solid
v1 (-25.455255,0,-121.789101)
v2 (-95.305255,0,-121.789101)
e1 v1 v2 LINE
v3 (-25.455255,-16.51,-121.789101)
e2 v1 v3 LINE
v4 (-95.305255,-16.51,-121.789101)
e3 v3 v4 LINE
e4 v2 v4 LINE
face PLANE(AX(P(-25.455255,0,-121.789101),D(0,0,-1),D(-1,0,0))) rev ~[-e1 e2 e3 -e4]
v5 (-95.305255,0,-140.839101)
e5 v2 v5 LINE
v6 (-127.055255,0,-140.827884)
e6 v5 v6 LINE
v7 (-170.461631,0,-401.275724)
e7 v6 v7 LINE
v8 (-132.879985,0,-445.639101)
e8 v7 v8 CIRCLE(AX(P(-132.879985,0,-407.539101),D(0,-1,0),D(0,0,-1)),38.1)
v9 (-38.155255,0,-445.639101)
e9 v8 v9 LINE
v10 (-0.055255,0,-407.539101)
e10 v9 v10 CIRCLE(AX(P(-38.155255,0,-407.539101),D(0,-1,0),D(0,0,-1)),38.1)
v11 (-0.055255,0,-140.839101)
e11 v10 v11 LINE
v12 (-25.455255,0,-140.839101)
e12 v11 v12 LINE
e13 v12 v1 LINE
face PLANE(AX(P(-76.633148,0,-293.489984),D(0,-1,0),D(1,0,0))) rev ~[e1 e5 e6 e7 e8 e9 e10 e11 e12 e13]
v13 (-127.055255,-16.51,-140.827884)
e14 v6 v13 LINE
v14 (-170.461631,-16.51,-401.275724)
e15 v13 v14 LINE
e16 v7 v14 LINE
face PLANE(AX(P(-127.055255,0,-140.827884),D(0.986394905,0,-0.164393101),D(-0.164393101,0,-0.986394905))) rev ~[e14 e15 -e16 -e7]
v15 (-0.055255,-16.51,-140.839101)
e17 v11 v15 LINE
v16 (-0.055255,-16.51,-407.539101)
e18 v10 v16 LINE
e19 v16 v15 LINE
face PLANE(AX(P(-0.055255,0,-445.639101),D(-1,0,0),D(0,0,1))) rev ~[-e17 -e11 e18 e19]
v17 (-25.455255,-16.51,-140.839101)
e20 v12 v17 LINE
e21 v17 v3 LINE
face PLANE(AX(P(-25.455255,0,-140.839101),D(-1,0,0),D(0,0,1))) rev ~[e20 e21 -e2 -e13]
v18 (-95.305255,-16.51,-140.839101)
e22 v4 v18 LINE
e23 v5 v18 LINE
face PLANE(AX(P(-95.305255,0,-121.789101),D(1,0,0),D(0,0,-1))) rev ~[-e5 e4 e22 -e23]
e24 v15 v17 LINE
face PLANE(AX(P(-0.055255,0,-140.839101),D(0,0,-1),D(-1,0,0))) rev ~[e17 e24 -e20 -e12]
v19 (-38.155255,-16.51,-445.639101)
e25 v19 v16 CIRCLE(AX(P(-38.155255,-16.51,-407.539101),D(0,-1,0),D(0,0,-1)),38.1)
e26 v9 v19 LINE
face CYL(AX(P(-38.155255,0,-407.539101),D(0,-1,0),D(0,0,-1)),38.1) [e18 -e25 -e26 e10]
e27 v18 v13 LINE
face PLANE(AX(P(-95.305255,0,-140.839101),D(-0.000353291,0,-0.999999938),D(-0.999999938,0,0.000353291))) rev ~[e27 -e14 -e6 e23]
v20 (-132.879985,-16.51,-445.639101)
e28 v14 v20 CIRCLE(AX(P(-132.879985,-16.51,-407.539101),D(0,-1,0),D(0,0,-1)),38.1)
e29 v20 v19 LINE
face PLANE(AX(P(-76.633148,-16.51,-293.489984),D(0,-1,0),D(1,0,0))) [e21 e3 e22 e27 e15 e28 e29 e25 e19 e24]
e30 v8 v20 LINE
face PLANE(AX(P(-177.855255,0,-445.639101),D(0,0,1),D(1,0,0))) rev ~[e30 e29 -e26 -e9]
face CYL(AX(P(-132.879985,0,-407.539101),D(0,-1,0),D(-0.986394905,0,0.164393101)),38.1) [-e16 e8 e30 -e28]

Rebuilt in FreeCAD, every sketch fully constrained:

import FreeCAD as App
import Part
import Sketcher
Q = App.Units.Quantity


def edges_at(feature, points):
    """Names of the edges that pass closest to the given points."""
    edges = feature.Shape.Edges
    near = lambda p: min(range(len(edges)), key=lambda i: edges[i].distToShape(Part.Vertex(*p))[0])
    return sorted({f"Edge{near(p) + 1}" for p in points})


def add_polygon(sketch, points):
    """Adds a closed chain of lines whose ends are joined by coincident constraints."""
    first, n = sketch.GeometryCount, len(points)
    for a, b in zip(points, points[1:] + points[:1]):
        sketch.addGeometry(Part.LineSegment(App.Vector(*a, 0), App.Vector(*b, 0)), False)
    for i in range(n):
        sketch.addConstraint(Sketcher.Constraint("Coincident", first + i, 2, first + (i + 1) % n, 1))

doc = App.newDocument("Part")
body = doc.addObject("PartDesign::Body", "Body")

sketch1 = body.newObject("Sketcher::SketchObject", "Sketch")
sketch1.AttachmentSupport = (doc.getObject("XZ_Plane"), [""])
sketch1.MapMode = "FlatFace"
add_polygon(sketch1, [(0, -446), (0, -141), (-25, -141), (-25, -122), (-95, -122), (-95, -141), (-127, -141), (-178, -446)])
sketch1.addConstraint([
    Sketcher.Constraint("Vertical", 0),
    Sketcher.Constraint("Horizontal", 1),
    Sketcher.Constraint("Vertical", 2),
    Sketcher.Constraint("Horizontal", 3),
    Sketcher.Constraint("Vertical", 4),
    Sketcher.Constraint("Horizontal", 7),
    Sketcher.Constraint("Horizontal", 1, 2, 4, 2),
    Sketcher.Constraint("DistanceX", 1, 2, 1, 1, Q("1 in")),
    Sketcher.Constraint("DistanceX", 7, 1, 7, 2, Q("7 in")),
    Sketcher.Constraint("DistanceY", 0, 1, 0, 2, Q("12 in")),
    Sketcher.Constraint("DistanceX", 5, 2, 1, 2, Q("4 in")),
    Sketcher.Constraint("DistanceX", 3, 2, 3, 1, Q("2.75 in")),
    Sketcher.Constraint("DistanceY", 2, 1, 2, 2, Q("0.75 in")),
    Sketcher.Constraint("Distance", 6, 309.015401),
    Sketcher.Constraint("DistanceY", 0, 2, -1, 1, 140.839101),
    Sketcher.Constraint("DistanceX", 0, 2, -1, 1, 0.055255),
])
pad1 = body.newObject("PartDesign::Pad", "Pad")
pad1.Profile = sketch1
pad1.Length = Q("0.65 in")
doc.recompute()

fillet = body.newObject("PartDesign::Fillet", "Fillet")
fillet.Base = (pad1, edges_at(pad1, [(-177.855, -8.255, -445.639)]))
fillet.Radius = Q("1.5 in")
doc.recompute()

fillet2 = body.newObject("PartDesign::Fillet", "Fillet001")
fillet2.Base = (fillet, edges_at(fillet, [(-0.055, -8.255, -445.639)]))
fillet2.Radius = Q("1.5 in")

doc.recompute()
